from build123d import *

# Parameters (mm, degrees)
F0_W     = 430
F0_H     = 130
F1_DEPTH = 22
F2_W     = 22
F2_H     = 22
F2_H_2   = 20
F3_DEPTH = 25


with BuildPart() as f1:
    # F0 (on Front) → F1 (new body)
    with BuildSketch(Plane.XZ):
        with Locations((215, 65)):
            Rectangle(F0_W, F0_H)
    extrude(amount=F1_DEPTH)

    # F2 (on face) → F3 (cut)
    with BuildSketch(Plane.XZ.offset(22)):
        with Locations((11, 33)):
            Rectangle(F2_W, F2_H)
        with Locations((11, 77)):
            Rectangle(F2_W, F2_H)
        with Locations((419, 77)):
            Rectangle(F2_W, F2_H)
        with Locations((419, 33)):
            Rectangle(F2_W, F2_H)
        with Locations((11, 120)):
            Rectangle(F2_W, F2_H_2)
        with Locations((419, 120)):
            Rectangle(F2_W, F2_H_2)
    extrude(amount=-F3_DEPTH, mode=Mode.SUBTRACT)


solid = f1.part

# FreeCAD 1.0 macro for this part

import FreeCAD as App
import Part
import Sketcher

V = App.Vector
Q = App.Units.Quantity

doc = App.newDocument("Part")
body = doc.addObject("PartDesign::Body", "Body")

sketch1 = doc.addObject("Sketcher::SketchObject", "Sketch")
body.addObject(sketch1)
sketch1.AttachmentSupport = (doc.XZ_Plane, [""])
sketch1.MapMode = "FlatFace"
sketch1.addGeometry(Part.LineSegment(V(0, 130, 0), V(0, 0, 0)), False)
sketch1.addGeometry(Part.LineSegment(V(0, 0, 0), V(430, 0, 0)), False)
sketch1.addGeometry(Part.LineSegment(V(430, 0, 0), V(430, 130, 0)), False)
sketch1.addGeometry(Part.LineSegment(V(430, 130, 0), V(0, 130, 0)), False)
sketch1.addConstraint(Sketcher.Constraint("Coincident", 0, 2, 1, 1))
sketch1.addConstraint(Sketcher.Constraint("Coincident", 1, 2, 2, 1))
sketch1.addConstraint(Sketcher.Constraint("Coincident", 2, 2, 3, 1))
sketch1.addConstraint(Sketcher.Constraint("Coincident", 3, 2, 0, 1))
sketch1.addConstraint(Sketcher.Constraint("Vertical", 0))
sketch1.addConstraint(Sketcher.Constraint("Horizontal", 1))
sketch1.addConstraint(Sketcher.Constraint("Vertical", 2))
sketch1.addConstraint(Sketcher.Constraint("Horizontal", 3))
sketch1.addConstraint(Sketcher.Constraint("Coincident", 0, 2, -1, 1))
sketch1.addConstraint(Sketcher.Constraint("DistanceX", 1, 1, 1, 2, Q("430 mm")))
sketch1.addConstraint(Sketcher.Constraint("DistanceY", 0, 2, 0, 1, Q("130 mm")))
pad1 = doc.addObject("PartDesign::Pad", "Pad")
body.addObject(pad1)
pad1.Profile = sketch1
pad1.Length = 22

sketch2 = doc.addObject("Sketcher::SketchObject", "Sketch001")
body.addObject(sketch2)
sketch2.AttachmentSupport = (doc.XZ_Plane, [""])
sketch2.MapMode = "FlatFace"
sketch2.AttachmentOffset = App.Placement(V(0, 0, 22), App.Rotation())
sketch2.addGeometry(Part.LineSegment(V(0, 44, 0), V(0, 22, 0)), False)
sketch2.addGeometry(Part.LineSegment(V(0, 22, 0), V(22, 22, 0)), False)
sketch2.addGeometry(Part.LineSegment(V(22, 22, 0), V(22, 44, 0)), False)
sketch2.addGeometry(Part.LineSegment(V(22, 44, 0), V(0, 44, 0)), False)
sketch2.addGeometry(Part.LineSegment(V(0, 88, 0), V(0, 66, 0)), False)
sketch2.addGeometry(Part.LineSegment(V(0, 66, 0), V(22, 66, 0)), False)
sketch2.addGeometry(Part.LineSegment(V(22, 66, 0), V(22, 88, 0)), False)
sketch2.addGeometry(Part.LineSegment(V(22, 88, 0), V(0, 88, 0)), False)
sketch2.addGeometry(Part.LineSegment(V(408, 88, 0), V(408, 66, 0)), False)
sketch2.addGeometry(Part.LineSegment(V(408, 66, 0), V(430, 66, 0)), False)
sketch2.addGeometry(Part.LineSegment(V(430, 66, 0), V(430, 88, 0)), False)
sketch2.addGeometry(Part.LineSegment(V(430, 88, 0), V(408, 88, 0)), False)
sketch2.addGeometry(Part.LineSegment(V(408, 44, 0), V(408, 22, 0)), False)
sketch2.addGeometry(Part.LineSegment(V(408, 22, 0), V(430, 22, 0)), False)
sketch2.addGeometry(Part.LineSegment(V(430, 22, 0), V(430, 44, 0)), False)
sketch2.addGeometry(Part.LineSegment(V(430, 44, 0), V(408, 44, 0)), False)
sketch2.addGeometry(Part.LineSegment(V(0, 130, 0), V(0, 110, 0)), False)
sketch2.addGeometry(Part.LineSegment(V(0, 110, 0), V(22, 110, 0)), False)
sketch2.addGeometry(Part.LineSegment(V(22, 110, 0), V(22, 130, 0)), False)
sketch2.addGeometry(Part.LineSegment(V(22, 130, 0), V(0, 130, 0)), False)
sketch2.addGeometry(Part.LineSegment(V(408, 130, 0), V(408, 110, 0)), False)
sketch2.addGeometry(Part.LineSegment(V(408, 110, 0), V(430, 110, 0)), False)
sketch2.addGeometry(Part.LineSegment(V(430, 110, 0), V(430, 130, 0)), False)
sketch2.addGeometry(Part.LineSegment(V(430, 130, 0), V(408, 130, 0)), False)
sketch2.addConstraint(Sketcher.Constraint("Coincident", 0, 2, 1, 1))
sketch2.addConstraint(Sketcher.Constraint("Coincident", 1, 2, 2, 1))
sketch2.addConstraint(Sketcher.Constraint("Coincident", 2, 2, 3, 1))
sketch2.addConstraint(Sketcher.Constraint("Coincident", 3, 2, 0, 1))
sketch2.addConstraint(Sketcher.Constraint("Coincident", 4, 2, 5, 1))
sketch2.addConstraint(Sketcher.Constraint("Coincident", 5, 2, 6, 1))
sketch2.addConstraint(Sketcher.Constraint("Coincident", 6, 2, 7, 1))
sketch2.addConstraint(Sketcher.Constraint("Coincident", 7, 2, 4, 1))
sketch2.addConstraint(Sketcher.Constraint("Coincident", 8, 2, 9, 1))
sketch2.addConstraint(Sketcher.Constraint("Coincident", 9, 2, 10, 1))
sketch2.addConstraint(Sketcher.Constraint("Coincident", 10, 2, 11, 1))
sketch2.addConstraint(Sketcher.Constraint("Coincident", 11, 2, 8, 1))
sketch2.addConstraint(Sketcher.Constraint("Coincident", 12, 2, 13, 1))
sketch2.addConstraint(Sketcher.Constraint("Coincident", 13, 2, 14, 1))
sketch2.addConstraint(Sketcher.Constraint("Coincident", 14, 2, 15, 1))
sketch2.addConstraint(Sketcher.Constraint("Coincident", 15, 2, 12, 1))
sketch2.addConstraint(Sketcher.Constraint("Coincident", 16, 2, 17, 1))
sketch2.addConstraint(Sketcher.Constraint("Coincident", 17, 2, 18, 1))
sketch2.addConstraint(Sketcher.Constraint("Coincident", 18, 2, 19, 1))
sketch2.addConstraint(Sketcher.Constraint("Coincident", 19, 2, 16, 1))
sketch2.addConstraint(Sketcher.Constraint("Coincident", 20, 2, 21, 1))
sketch2.addConstraint(Sketcher.Constraint("Coincident", 21, 2, 22, 1))
sketch2.addConstraint(Sketcher.Constraint("Coincident", 22, 2, 23, 1))
sketch2.addConstraint(Sketcher.Constraint("Coincident", 23, 2, 20, 1))
sketch2.addConstraint(Sketcher.Constraint("Vertical", 0))
sketch2.addConstraint(Sketcher.Constraint("Horizontal", 1))
sketch2.addConstraint(Sketcher.Constraint("Vertical", 2))
sketch2.addConstraint(Sketcher.Constraint("Horizontal", 3))
sketch2.addConstraint(Sketcher.Constraint("Vertical", 4))
sketch2.addConstraint(Sketcher.Constraint("Horizontal", 5))
sketch2.addConstraint(Sketcher.Constraint("Vertical", 6))
sketch2.addConstraint(Sketcher.Constraint("Horizontal", 7))
sketch2.addConstraint(Sketcher.Constraint("Vertical", 8))
sketch2.addConstraint(Sketcher.Constraint("Horizontal", 9))
sketch2.addConstraint(Sketcher.Constraint("Vertical", 10))
sketch2.addConstraint(Sketcher.Constraint("Horizontal", 11))
sketch2.addConstraint(Sketcher.Constraint("Vertical", 12))
sketch2.addConstraint(Sketcher.Constraint("Horizontal", 13))
sketch2.addConstraint(Sketcher.Constraint("Vertical", 14))
sketch2.addConstraint(Sketcher.Constraint("Horizontal", 15))
sketch2.addConstraint(Sketcher.Constraint("Vertical", 16))
sketch2.addConstraint(Sketcher.Constraint("Horizontal", 17))
sketch2.addConstraint(Sketcher.Constraint("Vertical", 18))
sketch2.addConstraint(Sketcher.Constraint("Horizontal", 19))
sketch2.addConstraint(Sketcher.Constraint("Vertical", 20))
sketch2.addConstraint(Sketcher.Constraint("Horizontal", 21))
sketch2.addConstraint(Sketcher.Constraint("Vertical", 22))
sketch2.addConstraint(Sketcher.Constraint("Horizontal", 23))
sketch2.addConstraint(Sketcher.Constraint("PointOnObject", 0, 2, -2))
sketch2.addConstraint(Sketcher.Constraint("PointOnObject", 4, 2, -2))
sketch2.addConstraint(Sketcher.Constraint("PointOnObject", 16, 2, -2))
sketch2.addConstraint(Sketcher.Constraint("Horizontal", 5, 2, 8, 2))
sketch2.addConstraint(Sketcher.Constraint("Horizontal", 7, 2, 10, 2))
sketch2.addConstraint(Sketcher.Constraint("Horizontal", 1, 2, 12, 2))
sketch2.addConstraint(Sketcher.Constraint("Horizontal", 3, 2, 14, 2))
sketch2.addConstraint(Sketcher.Constraint("Horizontal", 17, 2, 20, 2))
sketch2.addConstraint(Sketcher.Constraint("Horizontal", 19, 2, 22, 2))
sketch2.addConstraint(Sketcher.Constraint("Vertical", 2, 2, 5, 2))
sketch2.addConstraint(Sketcher.Constraint("Vertical", 11, 2, 12, 2))
sketch2.addConstraint(Sketcher.Constraint("Vertical", 10, 2, 13, 2))
sketch2.addConstraint(Sketcher.Constraint("Vertical", 6, 2, 17, 2))
sketch2.addConstraint(Sketcher.Constraint("Vertical", 15, 2, 20, 2))
sketch2.addConstraint(Sketcher.Constraint("Vertical", 14, 2, 21, 2))
sketch2.addConstraint(Sketcher.Constraint("Equal", 7, 9))
sketch2.addConstraint(Sketcher.Constraint("Equal", 23, 0))
sketch2.addConstraint(Sketcher.Constraint("Equal", 2, 4))
sketch2.addConstraint(Sketcher.Constraint("DistanceX", 1, 1, 1, 2, Q("22 mm")))
sketch2.addConstraint(Sketcher.Constraint("DistanceY", 16, 2, 16, 1, Q("20 mm")))
sketch2.addConstraint(Sketcher.Constraint("DistanceY", -1, 1, 0, 2, Q("22 mm")))
sketch2.addConstraint(Sketcher.Constraint("DistanceY", -1, 1, 4, 2, Q("66 mm")))
sketch2.addConstraint(Sketcher.Constraint("DistanceX", -1, 1, 8, 2, Q("408 mm")))
sketch2.addConstraint(Sketcher.Constraint("DistanceY", -1, 1, 16, 2, Q("110 mm")))
pocket1 = doc.addObject("PartDesign::Pocket", "Pocket")
body.addObject(pocket1)
pocket1.Profile = sketch2
pocket1.Length = 25

doc.recompute()
